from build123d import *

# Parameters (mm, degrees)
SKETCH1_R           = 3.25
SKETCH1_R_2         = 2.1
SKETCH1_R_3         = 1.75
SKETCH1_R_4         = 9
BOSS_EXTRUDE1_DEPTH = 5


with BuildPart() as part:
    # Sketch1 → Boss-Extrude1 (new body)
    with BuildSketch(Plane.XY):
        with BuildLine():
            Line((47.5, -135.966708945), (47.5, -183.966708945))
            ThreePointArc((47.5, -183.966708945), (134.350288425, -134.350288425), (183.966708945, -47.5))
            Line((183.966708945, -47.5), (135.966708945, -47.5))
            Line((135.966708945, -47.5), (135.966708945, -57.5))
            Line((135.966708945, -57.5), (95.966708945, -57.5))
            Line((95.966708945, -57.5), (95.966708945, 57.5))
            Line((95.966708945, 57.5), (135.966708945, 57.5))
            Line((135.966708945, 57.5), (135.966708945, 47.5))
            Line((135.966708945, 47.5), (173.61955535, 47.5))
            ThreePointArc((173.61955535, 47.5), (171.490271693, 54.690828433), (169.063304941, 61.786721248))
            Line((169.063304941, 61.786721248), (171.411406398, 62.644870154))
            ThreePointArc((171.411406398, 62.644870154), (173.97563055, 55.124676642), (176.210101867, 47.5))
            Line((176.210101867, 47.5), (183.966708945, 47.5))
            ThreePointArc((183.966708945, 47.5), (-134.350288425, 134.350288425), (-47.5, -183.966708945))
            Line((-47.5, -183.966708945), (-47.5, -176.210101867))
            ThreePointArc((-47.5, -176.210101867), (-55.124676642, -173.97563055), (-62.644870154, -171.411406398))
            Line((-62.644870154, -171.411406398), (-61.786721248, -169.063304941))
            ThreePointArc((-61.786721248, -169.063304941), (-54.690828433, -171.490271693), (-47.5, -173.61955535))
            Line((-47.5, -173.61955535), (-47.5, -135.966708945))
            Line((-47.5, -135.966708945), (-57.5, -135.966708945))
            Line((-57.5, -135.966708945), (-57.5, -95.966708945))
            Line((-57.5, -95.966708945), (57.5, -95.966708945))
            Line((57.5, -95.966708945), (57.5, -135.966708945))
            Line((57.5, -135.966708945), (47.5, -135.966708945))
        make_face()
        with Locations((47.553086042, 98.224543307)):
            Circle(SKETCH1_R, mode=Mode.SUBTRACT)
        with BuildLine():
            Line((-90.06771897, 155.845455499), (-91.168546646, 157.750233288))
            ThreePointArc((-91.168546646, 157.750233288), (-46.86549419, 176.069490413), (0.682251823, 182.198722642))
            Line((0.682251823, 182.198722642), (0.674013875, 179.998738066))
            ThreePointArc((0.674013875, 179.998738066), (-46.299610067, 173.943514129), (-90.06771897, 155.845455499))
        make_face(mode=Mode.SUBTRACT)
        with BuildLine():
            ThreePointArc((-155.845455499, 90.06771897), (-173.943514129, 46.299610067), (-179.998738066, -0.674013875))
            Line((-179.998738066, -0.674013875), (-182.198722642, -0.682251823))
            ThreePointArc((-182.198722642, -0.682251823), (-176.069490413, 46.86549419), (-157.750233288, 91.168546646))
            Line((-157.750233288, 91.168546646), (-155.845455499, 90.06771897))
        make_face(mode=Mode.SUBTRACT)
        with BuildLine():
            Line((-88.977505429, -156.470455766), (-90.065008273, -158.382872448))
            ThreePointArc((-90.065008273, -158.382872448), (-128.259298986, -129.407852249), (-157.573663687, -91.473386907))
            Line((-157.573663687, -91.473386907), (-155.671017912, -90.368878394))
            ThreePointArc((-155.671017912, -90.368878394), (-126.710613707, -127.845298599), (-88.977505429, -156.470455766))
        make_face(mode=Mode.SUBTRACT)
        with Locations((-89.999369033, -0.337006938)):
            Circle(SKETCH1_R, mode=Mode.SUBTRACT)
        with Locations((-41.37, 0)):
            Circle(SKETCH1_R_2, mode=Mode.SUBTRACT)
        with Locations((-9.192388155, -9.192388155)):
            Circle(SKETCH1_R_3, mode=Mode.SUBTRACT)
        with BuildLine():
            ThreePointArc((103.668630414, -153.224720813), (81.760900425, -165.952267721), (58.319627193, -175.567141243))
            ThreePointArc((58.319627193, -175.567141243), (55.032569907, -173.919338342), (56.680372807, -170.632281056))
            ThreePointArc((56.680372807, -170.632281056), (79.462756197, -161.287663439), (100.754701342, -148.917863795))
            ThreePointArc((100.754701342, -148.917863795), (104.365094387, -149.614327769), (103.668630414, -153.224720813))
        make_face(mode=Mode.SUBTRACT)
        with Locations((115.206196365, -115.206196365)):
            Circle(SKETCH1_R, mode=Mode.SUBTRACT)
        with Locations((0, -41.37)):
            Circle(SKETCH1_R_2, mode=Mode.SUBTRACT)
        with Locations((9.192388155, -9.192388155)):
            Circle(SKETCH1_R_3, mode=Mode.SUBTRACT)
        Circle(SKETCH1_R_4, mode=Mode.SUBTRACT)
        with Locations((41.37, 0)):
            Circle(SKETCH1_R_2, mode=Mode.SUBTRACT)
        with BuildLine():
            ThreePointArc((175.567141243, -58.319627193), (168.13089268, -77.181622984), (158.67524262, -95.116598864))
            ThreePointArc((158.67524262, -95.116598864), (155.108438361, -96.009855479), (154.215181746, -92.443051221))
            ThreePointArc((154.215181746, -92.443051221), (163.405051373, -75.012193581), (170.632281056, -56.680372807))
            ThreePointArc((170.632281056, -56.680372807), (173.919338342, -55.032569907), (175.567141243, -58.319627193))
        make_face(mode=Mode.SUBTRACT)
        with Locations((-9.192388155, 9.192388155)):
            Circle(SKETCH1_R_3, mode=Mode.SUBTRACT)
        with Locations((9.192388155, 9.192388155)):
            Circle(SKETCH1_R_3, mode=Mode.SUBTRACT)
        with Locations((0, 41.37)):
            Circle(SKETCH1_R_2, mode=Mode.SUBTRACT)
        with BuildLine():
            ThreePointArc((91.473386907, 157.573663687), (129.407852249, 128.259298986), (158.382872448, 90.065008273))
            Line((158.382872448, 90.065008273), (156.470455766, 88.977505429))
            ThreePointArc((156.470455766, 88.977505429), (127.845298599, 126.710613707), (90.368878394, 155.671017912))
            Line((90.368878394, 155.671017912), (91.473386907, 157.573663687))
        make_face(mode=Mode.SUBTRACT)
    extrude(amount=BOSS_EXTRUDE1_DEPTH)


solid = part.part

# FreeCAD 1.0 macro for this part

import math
import FreeCAD as App
import Part
import Sketcher
Q = App.Units.Quantity

doc = App.newDocument("Part")
body = doc.addObject("PartDesign::Body", "Body")

sketch1 = body.newObject("Sketcher::SketchObject", "Sketch")
sketch1.AttachmentSupport = (doc.getObject("XY_Plane"), [""])
sketch1.MapMode = "FlatFace"
sketch1.addGeometry([
    Part.LineSegment(App.Vector(47.5, -135.966709, 0), App.Vector(47.5, -183.966709, 0)),
    Part.ArcOfCircle(Part.Circle(App.Vector(0, 0, 0), App.Vector(0, 0, 1), 190), math.radians(-75.522488), math.radians(-14.477512)),
    Part.LineSegment(App.Vector(183.966709, -47.5, 0), App.Vector(135.966709, -47.5, 0)),
    Part.LineSegment(App.Vector(135.966709, -47.5, 0), App.Vector(135.966709, -57.5, 0)),
    Part.LineSegment(App.Vector(135.966709, -57.5, 0), App.Vector(95.966709, -57.5, 0)),
    Part.LineSegment(App.Vector(95.966709, -57.5, 0), App.Vector(95.966709, 57.5, 0)),
    Part.LineSegment(App.Vector(95.966709, 57.5, 0), App.Vector(135.966709, 57.5, 0)),
    Part.LineSegment(App.Vector(135.966709, 57.5, 0), App.Vector(135.966709, 47.5, 0)),
    Part.LineSegment(App.Vector(135.966709, 47.5, 0), App.Vector(173.619555, 47.5, 0)),
    Part.ArcOfCircle(Part.Circle(App.Vector(0, 0, 0), App.Vector(0, 0, 1), 180), math.radians(15.300941), math.radians(20.075589)),
    Part.LineSegment(App.Vector(169.063305, 61.786721, 0), App.Vector(171.411406, 62.64487, 0)),
    Part.ArcOfCircle(Part.Circle(App.Vector(0.000001, 0, 0), App.Vector(0, 0, 1), 182.499999), math.radians(15.086319), math.radians(20.075589)),
    Part.LineSegment(App.Vector(176.210102, 47.5, 0), App.Vector(183.966709, 47.5, 0)),
    Part.ArcOfCircle(Part.Circle(App.Vector(0, 0, 0), App.Vector(0, 0, 1), 190), math.radians(14.477512), math.radians(255.522488)),
    Part.LineSegment(App.Vector(-47.5, -183.966709, 0), App.Vector(-47.5, -176.210102, 0)),
    Part.ArcOfCircle(Part.Circle(App.Vector(0, -0.000001, 0), App.Vector(0, 0, 1), 182.499999), math.radians(-110.075589), math.radians(-105.086319)),
    Part.LineSegment(App.Vector(-62.64487, -171.411406, 0), App.Vector(-61.786721, -169.063305, 0)),
    Part.ArcOfCircle(Part.Circle(App.Vector(0, 0, 0), App.Vector(0, 0, 1), 180), math.radians(-110.075589), math.radians(-105.300941)),
    Part.LineSegment(App.Vector(-47.5, -173.619555, 0), App.Vector(-47.5, -135.966709, 0)),
    Part.LineSegment(App.Vector(-47.5, -135.966709, 0), App.Vector(-57.5, -135.966709, 0)),
    Part.LineSegment(App.Vector(-57.5, -135.966709, 0), App.Vector(-57.5, -95.966709, 0)),
    Part.LineSegment(App.Vector(-57.5, -95.966709, 0), App.Vector(57.5, -95.966709, 0)),
    Part.LineSegment(App.Vector(57.5, -95.966709, 0), App.Vector(57.5, -135.966709, 0)),
    Part.LineSegment(App.Vector(57.5, -135.966709, 0), App.Vector(47.5, -135.966709, 0)),
    Part.ArcOfCircle(Part.Circle(App.Vector(0, 0, 0), App.Vector(0, 0, 1), 180), math.radians(-149.864325), math.radians(-119.624886)),
    Part.LineSegment(App.Vector(-88.977505, -156.470456, 0), App.Vector(-90.065008, -158.382872, 0)),
    Part.ArcOfCircle(Part.Circle(App.Vector(0, 0, 0), App.Vector(0, 0, 1), 182.2), math.radians(-149.864325), math.radians(-119.624886)),
    Part.LineSegment(App.Vector(-157.573664, -91.473387, 0), App.Vector(-155.671018, -90.368878, 0)),
    Part.Circle(App.Vector(-89.999369, -0.337007, 0), App.Vector(0, 0, 1), 3.25),
    Part.Circle(App.Vector(-41.37, 0, 0), App.Vector(0, 0, 1), 2.1),
    Part.Circle(App.Vector(-9.192388, -9.192388, 0), App.Vector(0, 0, 1), 1.75),
    Part.ArcOfCircle(Part.Circle(App.Vector(102.211666, -151.071292, 0), App.Vector(0, 0, 1), 2.6), math.radians(-55.918543), math.radians(124.081457)),
    Part.ArcOfCircle(Part.Circle(App.Vector(0, 0, 0), App.Vector(0, 0, 1), 185), math.radians(-71.624623), math.radians(-55.918543)),
    Part.ArcOfCircle(Part.Circle(App.Vector(57.5, -173.099711, 0), App.Vector(0, 0, 1), 2.6), math.radians(108.375377), math.radians(288.375377)),
    Part.ArcOfCircle(Part.Circle(App.Vector(0, 0, 0), App.Vector(0, 0, 1), 179.8), math.radians(-71.624623), math.radians(-55.918543)),
    Part.Circle(App.Vector(115.206196, -115.206196, 0), App.Vector(0, 0, 1), 3.25),
    Part.Circle(App.Vector(0, -41.37, 0), App.Vector(0, 0, 1), 2.1),
    Part.Circle(App.Vector(9.192388, -9.192388, 0), App.Vector(0, 0, 1), 1.75),
    Part.Circle(App.Vector(0, 0, 0), App.Vector(0, 0, 1), 9),
    Part.Circle(App.Vector(41.37, 0, 0), App.Vector(0, 0, 1), 2.1),
    Part.ArcOfCircle(Part.Circle(App.Vector(173.099711, -57.5, 0), App.Vector(0, 0, 1), 2.6), math.radians(-18.375377), math.radians(161.624623)),
    Part.ArcOfCircle(Part.Circle(App.Vector(0, 0, 0), App.Vector(0, 0, 1), 185), math.radians(-30.940241), math.radians(-18.375377)),
    Part.ArcOfCircle(Part.Circle(App.Vector(156.445212, -93.779825, 0), App.Vector(0, 0, 1), 2.6), math.radians(149.059759), math.radians(329.059759)),
    Part.ArcOfCircle(Part.Circle(App.Vector(0, 0, 0), App.Vector(0, 0, 1), 179.8), math.radians(-30.940241), math.radians(-18.375377)),
    Part.LineSegment(App.Vector(-157.750233, 91.168547, 0), App.Vector(-155.845455, 90.067719, 0)),
    Part.ArcOfCircle(Part.Circle(App.Vector(0, 0, 0), App.Vector(0, 0, 1), 180), math.radians(149.975107), math.radians(180.214546)),
    Part.LineSegment(App.Vector(-179.998738, -0.674014, 0), App.Vector(-182.198723, -0.682252, 0)),
    Part.ArcOfCircle(Part.Circle(App.Vector(0, 0, 0), App.Vector(0, 0, 1), 182.2), math.radians(149.975107), math.radians(180.214546)),
    Part.Circle(App.Vector(-9.192388, 9.192388, 0), App.Vector(0, 0, 1), 1.75),
    Part.ArcOfCircle(Part.Circle(App.Vector(0, 0, 0), App.Vector(0, 0, 1), 180), math.radians(89.785454), math.radians(120.024893)),
    Part.LineSegment(App.Vector(-90.067719, 155.845455, 0), App.Vector(-91.168547, 157.750233, 0)),
    Part.ArcOfCircle(Part.Circle(App.Vector(0, 0, 0), App.Vector(0, 0, 1), 182.2), math.radians(89.785454), math.radians(120.024893)),
    Part.LineSegment(App.Vector(0.682252, 182.198723, 0), App.Vector(0.674014, 179.998738, 0)),
    Part.Circle(App.Vector(9.192388, 9.192388, 0), App.Vector(0, 0, 1), 1.75),
    Part.Circle(App.Vector(0, 41.37, 0), App.Vector(0, 0, 1), 2.1),
    Part.Circle(App.Vector(47.553086, 98.224543, 0), App.Vector(0, 0, 1), 3.25),
    Part.LineSegment(App.Vector(90.368878, 155.671018, 0), App.Vector(91.473387, 157.573664, 0)),
    Part.ArcOfCircle(Part.Circle(App.Vector(0, 0, 0), App.Vector(0, 0, 1), 182.2), math.radians(29.624886), math.radians(59.864325)),
    Part.LineSegment(App.Vector(158.382872, 90.065008, 0), App.Vector(156.470456, 88.977505, 0)),
    Part.ArcOfCircle(Part.Circle(App.Vector(0, 0, 0), App.Vector(0, 0, 1), 180), math.radians(29.624886), math.radians(59.864325)),
], False)
sketch1.addConstraint([
    Sketcher.Constraint("Coincident", 0, 2, 1, 1),
    Sketcher.Constraint("Coincident", 1, 2, 2, 1),
    Sketcher.Constraint("Coincident", 2, 2, 3, 1),
    Sketcher.Constraint("Coincident", 3, 2, 4, 1),
    Sketcher.Constraint("Coincident", 4, 2, 5, 1),
    Sketcher.Constraint("Coincident", 5, 2, 6, 1),
    Sketcher.Constraint("Coincident", 6, 2, 7, 1),
    Sketcher.Constraint("Coincident", 7, 2, 8, 1),
    Sketcher.Constraint("Coincident", 8, 2, 9, 1),
    Sketcher.Constraint("Coincident", 9, 2, 10, 1),
    Sketcher.Constraint("Coincident", 10, 2, 11, 2),
    Sketcher.Constraint("Coincident", 11, 1, 12, 1),
    Sketcher.Constraint("Coincident", 12, 2, 13, 1),
    Sketcher.Constraint("Coincident", 13, 2, 14, 1),
    Sketcher.Constraint("Coincident", 14, 2, 15, 2),
    Sketcher.Constraint("Coincident", 15, 1, 16, 1),
    Sketcher.Constraint("Coincident", 16, 2, 17, 1),
    Sketcher.Constraint("Coincident", 17, 2, 18, 1),
    Sketcher.Constraint("Coincident", 18, 2, 19, 1),
    Sketcher.Constraint("Coincident", 19, 2, 20, 1),
    Sketcher.Constraint("Coincident", 20, 2, 21, 1),
    Sketcher.Constraint("Coincident", 21, 2, 22, 1),
    Sketcher.Constraint("Coincident", 22, 2, 23, 1),
    Sketcher.Constraint("Coincident", 23, 2, 0, 1),
    Sketcher.Constraint("Coincident", 24, 2, 25, 1),
    Sketcher.Constraint("Coincident", 25, 2, 26, 2),
    Sketcher.Constraint("Coincident", 26, 1, 27, 1),
    Sketcher.Constraint("Coincident", 27, 2, 24, 1),
    Sketcher.Constraint("Tangent", 31, 1, 32, 2),
    Sketcher.Constraint("Tangent", 32, 1, 33, 2),
    Sketcher.Constraint("Tangent", 33, 1, 34, 1),
    Sketcher.Constraint("Tangent", 34, 2, 31, 2),
    Sketcher.Constraint("Tangent", 40, 1, 41, 2),
    Sketcher.Constraint("Tangent", 41, 1, 42, 2),
    Sketcher.Constraint("Tangent", 42, 1, 43, 1),
    Sketcher.Constraint("Tangent", 43, 2, 40, 2),
    Sketcher.Constraint("Coincident", 44, 2, 45, 1),
    Sketcher.Constraint("Coincident", 45, 2, 46, 1),
    Sketcher.Constraint("Coincident", 46, 2, 47, 2),
    Sketcher.Constraint("Coincident", 47, 1, 44, 1),
    Sketcher.Constraint("Coincident", 49, 2, 50, 1),
    Sketcher.Constraint("Coincident", 50, 2, 51, 2),
    Sketcher.Constraint("Coincident", 51, 1, 52, 1),
    Sketcher.Constraint("Coincident", 52, 2, 49, 1),
    Sketcher.Constraint("Coincident", 56, 2, 57, 2),
    Sketcher.Constraint("Coincident", 57, 1, 58, 1),
    Sketcher.Constraint("Coincident", 58, 2, 59, 1),
    Sketcher.Constraint("Coincident", 59, 2, 56, 1),
    Sketcher.Constraint("Vertical", 0),
    Sketcher.Constraint("Horizontal", 2),
    Sketcher.Constraint("Vertical", 3),
    Sketcher.Constraint("Horizontal", 4),
    Sketcher.Constraint("Vertical", 5),
    Sketcher.Constraint("Horizontal", 6),
    Sketcher.Constraint("Vertical", 7),
    Sketcher.Constraint("Horizontal", 8),
    Sketcher.Constraint("Horizontal", 12),
    Sketcher.Constraint("Vertical", 14),
    Sketcher.Constraint("Vertical", 18),
    Sketcher.Constraint("Horizontal", 19),
    Sketcher.Constraint("Vertical", 20),
    Sketcher.Constraint("Horizontal", 21),
    Sketcher.Constraint("Vertical", 22),
    Sketcher.Constraint("Horizontal", 23),
    Sketcher.Constraint("Coincident", 1, 3, -1, 1),
    Sketcher.Constraint("Coincident", 9, 3, -1, 1),
    Sketcher.Constraint("Coincident", 11, 3, -1, 1),
    Sketcher.Constraint("Coincident", 13, 3, -1, 1),
    Sketcher.Constraint("Coincident", 15, 3, -1, 1),
    Sketcher.Constraint("Coincident", 17, 3, -1, 1),
    Sketcher.Constraint("Coincident", 24, 3, -1, 1),
    Sketcher.Constraint("Coincident", 26, 3, -1, 1),
    Sketcher.Constraint("Coincident", 32, 3, -1, 1),
    Sketcher.Constraint("Coincident", 34, 3, -1, 1),
    Sketcher.Constraint("Coincident", 38, 3, -1, 1),
    Sketcher.Constraint("Coincident", 41, 3, -1, 1),
    Sketcher.Constraint("Coincident", 43, 3, -1, 1),
    Sketcher.Constraint("Coincident", 45, 3, -1, 1),
    Sketcher.Constraint("Coincident", 47, 3, -1, 1),
    Sketcher.Constraint("Coincident", 49, 3, -1, 1),
    Sketcher.Constraint("Coincident", 51, 3, -1, 1),
    Sketcher.Constraint("Coincident", 57, 3, -1, 1),
    Sketcher.Constraint("Coincident", 59, 3, -1, 1),
    Sketcher.Constraint("Equal", 1, 13),
    Sketcher.Constraint("Equal", 11, 15),
    Sketcher.Constraint("Equal", 9, 17),
    Sketcher.Constraint("Equal", 17, 24),
    Sketcher.Constraint("Equal", 28, 35),
    Sketcher.Constraint("Equal", 29, 36),
    Sketcher.Constraint("Equal", 30, 37),
    Sketcher.Constraint("Equal", 36, 39),
    Sketcher.Constraint("Equal", 33, 40),
    Sketcher.Constraint("Equal", 32, 41),
    Sketcher.Constraint("Equal", 24, 45),
    Sketcher.Constraint("Equal", 26, 47),
    Sketcher.Constraint("Equal", 37, 48),
    Sketcher.Constraint("Equal", 45, 49),
    Sketcher.Constraint("Equal", 47, 51),
    Sketcher.Constraint("Equal", 48, 53),
    Sketcher.Constraint("Equal", 39, 54),
    Sketcher.Constraint("Equal", 35, 55),
    Sketcher.Constraint("Equal", 51, 57),
    Sketcher.Constraint("Equal", 49, 59),
    Sketcher.Constraint("Symmetric", 29, 3, 39, 3, -1, 1),
    Sketcher.Constraint("Symmetric", 37, 3, 48, 3, -1, 1),
    Sketcher.Constraint("Symmetric", 30, 3, 53, 3, -1, 1),
    Sketcher.Constraint("Symmetric", 36, 3, 54, 3, -1, 1),
    Sketcher.Constraint("Symmetric", 30, 3, 37, 3, -2),
    Sketcher.Constraint("Symmetric", 19, 2, 22, 2, -2),
    Sketcher.Constraint("Symmetric", 3, 2, 6, 2, -1),
    Sketcher.Constraint("PointOnObject", 29, 3, -1),
    Sketcher.Constraint("PointOnObject", 36, 3, -2),
    Sketcher.Constraint("Horizontal", 40, 3, 3, 2),
    Sketcher.Constraint("Horizontal", 8, 2, 11, 1),
    Sketcher.Constraint("Horizontal", 0, 2, 13, 2),
    Sketcher.Constraint("Vertical", 1, 2, 12, 2),
    Sketcher.Constraint("Vertical", 14, 2, 17, 2),
    Sketcher.Constraint("Vertical", 33, 3, 21, 2),
    Sketcher.Constraint("Equal", 2, 0),
    Sketcher.Constraint("Equal", 23, 3),
    Sketcher.Constraint("Equal", 21, 5),
    Sketcher.Constraint("Equal", 6, 20),
    Sketcher.Constraint("Diameter", 38, Q("18 mm")),
    Sketcher.Constraint("Radius", 1, Q("190 mm")),
    Sketcher.Constraint("Radius", 9, Q("180 mm")),
    Sketcher.Constraint("Radius", 32, Q("185 mm")),
    Sketcher.Constraint("Diameter", 28, Q("6.5 mm")),
    Sketcher.Constraint("Diameter", 29, Q("4.2 mm")),
    Sketcher.Constraint("Diameter", 30, Q("3.5 mm")),
    Sketcher.Constraint("Radius", 11, Q("182.499999 mm")),
    Sketcher.Constraint("Radius", 26, Q("182.2 mm")),
    Sketcher.Constraint("Radius", 31, Q("2.6 mm")),
    Sketcher.Constraint("DistanceX", 2, 2, 2, 1, Q("48 mm")),
    Sketcher.Constraint("DistanceX", 4, 2, 4, 1, Q("40 mm")),
    Sketcher.Constraint("DistanceX", 19, 2, 19, 1, Q("10 mm")),
    Sketcher.Constraint("DistanceX", 21, 1, 21, 2, Q("115 mm")),
    Sketcher.Constraint("DistanceX", 29, 3, -1, 1, Q("41.37 mm")),
    Sketcher.Constraint("DistanceY", 36, 3, -1, 1, Q("41.37 mm")),
    Sketcher.Constraint("DistanceX", -1, 1, 34, 2, Q("100.754701 mm")),
    Sketcher.Constraint("DistanceY", 41, 1, -1, 1, Q("95.116599 mm")),
    Sketcher.Constraint("DistanceX", 28, 3, -1, 1, Q("89.999369 mm")),
    Sketcher.Constraint("DistanceX", 30, 3, -1, 1, Q("9.192388 mm")),
    Sketcher.Constraint("DistanceY", 30, 3, -1, 1, Q("9.192388 mm")),
    Sketcher.Constraint("DistanceY", -1, 1, 9, 2, Q("61.786721 mm")),
    Sketcher.Constraint("DistanceY", -1, 1, 10, 2, Q("62.64487 mm")),
    Sketcher.Constraint("DistanceX", 15, 1, -1, 1, Q("62.64487 mm")),
    Sketcher.Constraint("DistanceX", 16, 2, -1, 1, Q("61.786721 mm")),
    Sketcher.Constraint("DistanceX", 25, 2, -1, 1, Q("90.065008 mm")),
    Sketcher.Constraint("DistanceY", 27, 2, -1, 1, Q("90.368878 mm")),
    Sketcher.Constraint("DistanceY", -1, 1, 44, 2, Q("90.067719 mm")),
    Sketcher.Constraint("DistanceX", 45, 2, -1, 1, Q("179.998738 mm")),
    Sketcher.Constraint("DistanceY", 46, 2, -1, 1, Q("0.682252 mm")),
    Sketcher.Constraint("DistanceX", 49, 2, -1, 1, Q("90.067719 mm")),
    Sketcher.Constraint("DistanceX", -1, 1, 51, 1, Q("0.682252 mm")),
    Sketcher.Constraint("DistanceY", -1, 1, 52, 2, Q("179.998738 mm")),
    Sketcher.Constraint("DistanceY", -1, 1, 57, 1, Q("90.065008 mm")),
    Sketcher.Constraint("DistanceX", -1, 1, 59, 2, Q("90.368878 mm")),
    Sketcher.Constraint("DistanceY", 28, 3, -1, 1, Q("0.337007 mm")),
    Sketcher.Constraint("DistanceX", -1, 1, 35, 3, Q("115.206196 mm")),
    Sketcher.Constraint("DistanceY", 35, 3, -1, 1, Q("115.206196 mm")),
    Sketcher.Constraint("DistanceX", -1, 1, 55, 3, Q("47.553086 mm")),
    Sketcher.Constraint("DistanceY", -1, 1, 55, 3, Q("98.224543 mm")),
    Sketcher.Constraint("DistanceX", 24, 2, -1, 1, Q("88.977505 mm")),
    Sketcher.Constraint("DistanceX", 26, 1, -1, 1, Q("157.573664 mm")),
    Sketcher.Constraint("DistanceX", 47, 1, -1, 1, Q("157.750233 mm")),
    Sketcher.Constraint("DistanceX", 50, 2, -1, 1, Q("91.168547 mm")),
    Sketcher.Constraint("DistanceX", -1, 1, 56, 2, Q("91.473387 mm")),
    Sketcher.Constraint("DistanceX", -1, 1, 58, 2, Q("156.470456 mm")),
])
pad1 = body.newObject("PartDesign::Pad", "Pad")
pad1.Profile = sketch1
pad1.Length = 5

doc.recompute()
